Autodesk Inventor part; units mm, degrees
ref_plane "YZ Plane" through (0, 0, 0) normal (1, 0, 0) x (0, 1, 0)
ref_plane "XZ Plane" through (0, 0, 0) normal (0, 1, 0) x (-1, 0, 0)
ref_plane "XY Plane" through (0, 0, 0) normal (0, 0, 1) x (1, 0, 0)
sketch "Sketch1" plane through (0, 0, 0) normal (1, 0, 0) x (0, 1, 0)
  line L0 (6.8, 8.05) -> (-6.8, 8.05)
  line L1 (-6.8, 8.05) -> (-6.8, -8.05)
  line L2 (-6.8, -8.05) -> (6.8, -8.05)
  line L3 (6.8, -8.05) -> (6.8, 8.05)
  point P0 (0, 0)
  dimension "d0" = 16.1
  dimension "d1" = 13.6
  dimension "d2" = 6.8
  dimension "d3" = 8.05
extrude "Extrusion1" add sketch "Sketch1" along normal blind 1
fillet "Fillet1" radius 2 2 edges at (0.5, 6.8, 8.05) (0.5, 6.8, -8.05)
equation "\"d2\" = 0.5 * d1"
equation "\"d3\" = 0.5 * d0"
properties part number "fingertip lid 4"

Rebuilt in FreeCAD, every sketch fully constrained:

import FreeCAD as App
import Part
import Sketcher
Q = App.Units.Quantity


def edges_at(feature, points):
    """Names of the edges that pass closest to the given points."""
    edges = feature.Shape.Edges
    near = lambda p: min(range(len(edges)), key=lambda i: edges[i].distToShape(Part.Vertex(*p))[0])
    return sorted({f"Edge{near(p) + 1}" for p in points})


def add_polygon(sketch, points):
    """Adds a closed chain of lines whose ends are joined by coincident constraints."""
    first, n = sketch.GeometryCount, len(points)
    for a, b in zip(points, points[1:] + points[:1]):
        sketch.addGeometry(Part.LineSegment(App.Vector(*a, 0), App.Vector(*b, 0)), False)
    for i in range(n):
        sketch.addConstraint(Sketcher.Constraint("Coincident", first + i, 2, first + (i + 1) % n, 1))

doc = App.newDocument("Part")
body = doc.addObject("PartDesign::Body", "Body")

# Sketch on YZ plane
sketch1 = doc.addObject("Sketcher::SketchObject", "Sketch")
body.addObject(sketch1)
sketch1.AttachmentSupport = (doc.YZ_Plane, [""])
sketch1.MapMode = "FlatFace"
add_polygon(sketch1, [(7, -8), (7, 8), (-7, 8), (-7, -8)])  # lines 0-3
sketch1.addConstraint(Sketcher.Constraint("Vertical", 0))
sketch1.addConstraint(Sketcher.Constraint("Horizontal", 1))
sketch1.addConstraint(Sketcher.Constraint("Vertical", 2))
sketch1.addConstraint(Sketcher.Constraint("Horizontal", 3))
sketch1.addConstraint(Sketcher.Constraint("Symmetric", 0, 2, 2, 2, -1, 1))
sketch1.addConstraint(Sketcher.Constraint("DistanceX", 1, 2, 1, 1, Q("13.6 mm")))
sketch1.addConstraint(Sketcher.Constraint("DistanceY", 0, 1, 0, 2, Q("16.1 mm")))
pad1 = doc.addObject("PartDesign::Pad", "Pad")
body.addObject(pad1)
pad1.Profile = sketch1
pad1.Length = 1
doc.recompute()

fillet = doc.addObject("PartDesign::Fillet", "Fillet")
body.addObject(fillet)
fillet.Base = (pad1, edges_at(pad1, [(0.5, 6.8, 8.05), (0.5, 6.8, -8.05)]))
fillet.Radius = 2

doc.recompute()
